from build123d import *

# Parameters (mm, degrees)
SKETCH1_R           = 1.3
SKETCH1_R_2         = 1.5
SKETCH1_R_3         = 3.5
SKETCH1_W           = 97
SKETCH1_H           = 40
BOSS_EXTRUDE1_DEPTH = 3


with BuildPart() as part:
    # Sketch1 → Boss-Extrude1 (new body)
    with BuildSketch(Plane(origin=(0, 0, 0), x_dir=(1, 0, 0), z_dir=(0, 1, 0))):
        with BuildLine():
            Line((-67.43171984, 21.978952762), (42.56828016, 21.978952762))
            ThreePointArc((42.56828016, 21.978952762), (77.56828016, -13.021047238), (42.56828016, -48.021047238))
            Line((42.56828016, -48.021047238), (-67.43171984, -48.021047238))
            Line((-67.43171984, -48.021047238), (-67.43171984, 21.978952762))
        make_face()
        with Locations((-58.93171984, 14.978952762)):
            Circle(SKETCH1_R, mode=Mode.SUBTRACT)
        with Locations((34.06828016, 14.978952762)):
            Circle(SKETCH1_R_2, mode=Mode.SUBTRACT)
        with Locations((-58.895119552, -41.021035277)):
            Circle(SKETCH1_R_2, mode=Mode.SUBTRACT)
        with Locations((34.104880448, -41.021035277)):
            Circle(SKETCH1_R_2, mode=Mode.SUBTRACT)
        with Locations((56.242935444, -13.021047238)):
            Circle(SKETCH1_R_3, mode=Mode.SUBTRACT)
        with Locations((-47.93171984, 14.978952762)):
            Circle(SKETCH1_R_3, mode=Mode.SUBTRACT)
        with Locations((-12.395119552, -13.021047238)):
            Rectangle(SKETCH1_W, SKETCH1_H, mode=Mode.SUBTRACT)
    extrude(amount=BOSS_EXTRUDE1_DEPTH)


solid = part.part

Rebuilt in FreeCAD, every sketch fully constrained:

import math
import FreeCAD as App
import Part
import Sketcher

V = App.Vector

doc = App.newDocument("Part")
body = doc.addObject("PartDesign::Body", "Body")

sketch1 = body.newObject("Sketcher::SketchObject", "Sketch")
sketch1.AttachmentSupport = (doc.getObject("XZ_Plane"), [""])
sketch1.MapMode = "FlatFace"
sketch1.addGeometry([
    Part.LineSegment(V(42.56828, -21.978953, 0), V(-67.43172, -21.978953, 0)),
    Part.LineSegment(V(-67.43172, -21.978953, 0), V(-67.43172, 48.021047, 0)),
    Part.LineSegment(V(-67.43172, 48.021047, 0), V(42.56828, 48.021047, 0)),
    Part.ArcOfCircle(Part.Circle(V(42.56828, 13.021047, 0), V(0, 0, 1), 35), math.radians(-90), math.radians(90)),
    Part.Circle(V(34.10488, 41.021035, 0), V(0, 0, 1), 1.5),
    Part.Circle(V(56.242935, 13.021047, 0), V(0, 0, 1), 3.5),
    Part.Circle(V(-58.89512, 41.021035, 0), V(0, 0, 1), 1.5),
    Part.LineSegment(V(-60.89512, 33.021047, 0), V(-60.89512, -6.978953, 0)),
    Part.LineSegment(V(-60.89512, -6.978953, 0), V(36.10488, -6.978953, 0)),
    Part.LineSegment(V(36.10488, -6.978953, 0), V(36.10488, 33.021047, 0)),
    Part.LineSegment(V(36.10488, 33.021047, 0), V(-60.89512, 33.021047, 0)),
    Part.Circle(V(34.06828, -14.978953, 0), V(0, 0, 1), 1.5),
    Part.Circle(V(-47.93172, -14.978953, 0), V(0, 0, 1), 3.5),
    Part.Circle(V(-58.93172, -14.978953, 0), V(0, 0, 1), 1.3),
], False)
sketch1.addConstraint([
    Sketcher.Constraint("Coincident", 0, 2, 1, 1),
    Sketcher.Constraint("Coincident", 1, 2, 2, 1),
    Sketcher.Constraint("Tangent", 2, 2, 3, 2),
    Sketcher.Constraint("Tangent", 3, 1, 0, 1),
    Sketcher.Constraint("Coincident", 7, 2, 8, 1),
    Sketcher.Constraint("Coincident", 8, 2, 9, 1),
    Sketcher.Constraint("Coincident", 9, 2, 10, 1),
    Sketcher.Constraint("Coincident", 10, 2, 7, 1),
    Sketcher.Constraint("Horizontal", 0),
    Sketcher.Constraint("Vertical", 1),
    Sketcher.Constraint("Horizontal", 2),
    Sketcher.Constraint("Vertical", 7),
    Sketcher.Constraint("Horizontal", 8),
    Sketcher.Constraint("Vertical", 9),
    Sketcher.Constraint("Horizontal", 10),
    Sketcher.Constraint("Equal", 4, 6),
    Sketcher.Constraint("Equal", 6, 11),
    Sketcher.Constraint("Equal", 5, 12),
    Sketcher.Constraint("Horizontal", 3, 3, 5, 3),
    Sketcher.Constraint("Horizontal", 4, 3, 6, 3),
    Sketcher.Constraint("Horizontal", 11, 3, 12, 3),
    Sketcher.Constraint("Horizontal", 12, 3, 13, 3),
    Sketcher.Constraint("Diameter", 4, 3.0),
    Sketcher.Constraint("Diameter", 5, 7.0),
    Sketcher.Constraint("Radius", 3, 35.0),
    Sketcher.Constraint("Diameter", 13, 2.6),
    Sketcher.Constraint("DistanceX", 0, 2, 0, 1, 110.0),
    Sketcher.Constraint("DistanceX", 8, 1, 8, 2, 97.0),
    Sketcher.Constraint("DistanceY", 7, 2, 7, 1, 40.0),
    Sketcher.Constraint("DistanceX", 6, 3, 4, 3, 93.0),
    Sketcher.Constraint("DistanceY", 11, 3, 3, 3, 28.0),
    Sketcher.Constraint("DistanceX", 12, 3, 11, 3, 82.0),
    Sketcher.Constraint("DistanceX", 13, 3, 12, 3, 11.0),
    Sketcher.Constraint("DistanceY", 13, 3, 7, 2, 8.0),
    Sketcher.Constraint("DistanceX", 7, 2, 6, 3, 2.0),
    Sketcher.Constraint("DistanceX", 11, 3, 3, 3, 8.5),
    Sketcher.Constraint("DistanceX", 4, 3, 3, 3, 8.4634),
    Sketcher.Constraint("DistanceX", -1, 1, 3, 3, 42.56828),
    Sketcher.Constraint("DistanceY", 3, 3, 4, 3, 27.999988),
    Sketcher.Constraint("DistanceY", -1, 1, 3, 3, 13.021047),
    Sketcher.Constraint("DistanceX", -1, 1, 5, 3, 56.242935),
])
pad1 = body.newObject("PartDesign::Pad", "Pad")
pad1.Profile = sketch1
pad1.Length = 3
pad1.Reversed = True

doc.recompute()
